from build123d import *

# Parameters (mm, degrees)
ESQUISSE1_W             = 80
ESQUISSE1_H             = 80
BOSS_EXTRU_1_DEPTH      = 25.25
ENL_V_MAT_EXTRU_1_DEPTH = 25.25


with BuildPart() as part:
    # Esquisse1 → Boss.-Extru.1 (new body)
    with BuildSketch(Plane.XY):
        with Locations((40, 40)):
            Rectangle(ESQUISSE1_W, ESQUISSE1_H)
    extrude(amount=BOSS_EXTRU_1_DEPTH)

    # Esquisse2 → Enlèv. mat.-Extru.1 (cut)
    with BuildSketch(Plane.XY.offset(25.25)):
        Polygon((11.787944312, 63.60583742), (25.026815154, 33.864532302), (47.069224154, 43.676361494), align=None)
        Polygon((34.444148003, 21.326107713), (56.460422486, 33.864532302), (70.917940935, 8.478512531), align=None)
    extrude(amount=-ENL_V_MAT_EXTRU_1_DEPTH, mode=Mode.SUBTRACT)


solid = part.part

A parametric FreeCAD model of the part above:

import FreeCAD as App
import Part
import Sketcher
Q = App.Units.Quantity

doc = App.newDocument("Part")
body = doc.addObject("PartDesign::Body", "Body")

sketch1 = body.newObject("Sketcher::SketchObject", "Sketch")
sketch1.AttachmentSupport = (doc.getObject("XY_Plane"), [""])
sketch1.MapMode = "FlatFace"
sketch1.addGeometry(Part.LineSegment(App.Vector(0, 80, 0), App.Vector(0, 0, 0)), False)
sketch1.addGeometry(Part.LineSegment(App.Vector(0, 0, 0), App.Vector(80, 0, 0)), False)
sketch1.addGeometry(Part.LineSegment(App.Vector(80, 0, 0), App.Vector(80, 80, 0)), False)
sketch1.addGeometry(Part.LineSegment(App.Vector(80, 80, 0), App.Vector(0, 80, 0)), False)
sketch1.addConstraint(Sketcher.Constraint("Coincident", 0, 2, 1, 1))
sketch1.addConstraint(Sketcher.Constraint("Coincident", 1, 2, 2, 1))
sketch1.addConstraint(Sketcher.Constraint("Coincident", 2, 2, 3, 1))
sketch1.addConstraint(Sketcher.Constraint("Coincident", 3, 2, 0, 1))
sketch1.addConstraint(Sketcher.Constraint("Vertical", 0))
sketch1.addConstraint(Sketcher.Constraint("Horizontal", 1))
sketch1.addConstraint(Sketcher.Constraint("Vertical", 2))
sketch1.addConstraint(Sketcher.Constraint("Horizontal", 3))
sketch1.addConstraint(Sketcher.Constraint("Coincident", 0, 2, -1, 1))
sketch1.addConstraint(Sketcher.Constraint("Equal", 3, 0))
sketch1.addConstraint(Sketcher.Constraint("DistanceX", 1, 1, 1, 2, Q("80 mm")))
pad1 = body.newObject("PartDesign::Pad", "Pad")
pad1.Profile = sketch1
pad1.Length = 25.25

sketch2 = body.newObject("Sketcher::SketchObject", "Sketch001")
sketch2.AttachmentSupport = (doc.getObject("XY_Plane"), [""])
sketch2.MapMode = "FlatFace"
sketch2.AttachmentOffset = App.Placement(App.Vector(0, 0, 25.25), App.Rotation())
sketch2.addGeometry(Part.LineSegment(App.Vector(11.787944, 63.605837, 0), App.Vector(25.026815, 33.864532, 0)), False)
sketch2.addGeometry(Part.LineSegment(App.Vector(25.026815, 33.864532, 0), App.Vector(47.069224, 43.676361, 0)), False)
sketch2.addGeometry(Part.LineSegment(App.Vector(47.069224, 43.676361, 0), App.Vector(11.787944, 63.605837, 0)), False)
sketch2.addGeometry(Part.LineSegment(App.Vector(56.460422, 33.864532, 0), App.Vector(34.444148, 21.326108, 0)), False)
sketch2.addGeometry(Part.LineSegment(App.Vector(34.444148, 21.326108, 0), App.Vector(70.917941, 8.478513, 0)), False)
sketch2.addGeometry(Part.LineSegment(App.Vector(70.917941, 8.478513, 0), App.Vector(56.460422, 33.864532, 0)), False)
sketch2.addConstraint(Sketcher.Constraint("Coincident", 0, 2, 1, 1))
sketch2.addConstraint(Sketcher.Constraint("Coincident", 1, 2, 2, 1))
sketch2.addConstraint(Sketcher.Constraint("Coincident", 2, 2, 0, 1))
sketch2.addConstraint(Sketcher.Constraint("Coincident", 3, 2, 4, 1))
sketch2.addConstraint(Sketcher.Constraint("Coincident", 4, 2, 5, 1))
sketch2.addConstraint(Sketcher.Constraint("Coincident", 5, 2, 3, 1))
sketch2.addConstraint(Sketcher.Constraint("Perpendicular", 0, 1))
sketch2.addConstraint(Sketcher.Constraint("Perpendicular", 3, 5))
sketch2.addConstraint(Sketcher.Constraint("Horizontal", 0, 2, 5, 2))
sketch2.addConstraint(Sketcher.Constraint("DistanceX", 1, 2, 5, 2, Q("9.391198 mm")))
sketch2.addConstraint(Sketcher.Constraint("Distance", 0, Q("32.554768 mm")))
sketch2.addConstraint(Sketcher.Constraint("Distance", 4, Q("38.67038 mm")))
sketch2.addConstraint(Sketcher.Constraint("DistanceY", -1, 1, 1, 2, Q("43.676361 mm")))
sketch2.addConstraint(Sketcher.Constraint("DistanceX", -1, 1, 3, 2, Q("34.444148 mm")))
sketch2.addConstraint(Sketcher.Constraint("DistanceX", -1, 1, 4, 2, Q("70.917941 mm")))
sketch2.addConstraint(Sketcher.Constraint("DistanceX", 0, 2, 1, 2, Q("22.042409 mm")))
sketch2.addConstraint(Sketcher.Constraint("DistanceY", 0, 2, 1, 2, Q("9.811829 mm")))
sketch2.addConstraint(Sketcher.Constraint("DistanceY", 3, 2, 2, 2, Q("42.27973 mm")))
pocket1 = body.newObject("PartDesign::Pocket", "Pocket")
pocket1.Profile = sketch2
pocket1.Length = 25.25

doc.recompute()
